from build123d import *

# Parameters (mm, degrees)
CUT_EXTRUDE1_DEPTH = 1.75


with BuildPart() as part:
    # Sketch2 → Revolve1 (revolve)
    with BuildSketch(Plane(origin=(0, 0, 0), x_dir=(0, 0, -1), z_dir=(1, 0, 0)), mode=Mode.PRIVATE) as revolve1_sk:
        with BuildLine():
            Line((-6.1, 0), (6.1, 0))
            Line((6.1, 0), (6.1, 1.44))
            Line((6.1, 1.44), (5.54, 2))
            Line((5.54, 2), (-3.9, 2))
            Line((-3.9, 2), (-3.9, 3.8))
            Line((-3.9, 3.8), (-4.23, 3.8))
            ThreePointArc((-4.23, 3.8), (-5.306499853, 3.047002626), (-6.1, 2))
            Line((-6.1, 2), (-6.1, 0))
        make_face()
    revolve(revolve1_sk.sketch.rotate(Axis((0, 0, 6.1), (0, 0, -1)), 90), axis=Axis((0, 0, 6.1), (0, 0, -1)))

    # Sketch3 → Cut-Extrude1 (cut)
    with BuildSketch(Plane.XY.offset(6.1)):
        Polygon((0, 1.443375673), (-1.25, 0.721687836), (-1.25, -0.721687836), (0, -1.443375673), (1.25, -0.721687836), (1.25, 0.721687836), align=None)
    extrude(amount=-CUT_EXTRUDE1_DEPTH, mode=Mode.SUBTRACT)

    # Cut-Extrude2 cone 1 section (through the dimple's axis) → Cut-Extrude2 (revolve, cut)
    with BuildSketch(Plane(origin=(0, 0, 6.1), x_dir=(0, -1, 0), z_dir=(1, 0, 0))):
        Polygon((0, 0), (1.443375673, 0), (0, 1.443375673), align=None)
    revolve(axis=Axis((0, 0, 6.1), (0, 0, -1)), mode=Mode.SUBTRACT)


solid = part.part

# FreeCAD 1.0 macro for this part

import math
import FreeCAD as App
import Part
import Sketcher
from FreeCAD import Vector
Q = App.Units.Quantity

doc = App.newDocument("Part")
body = doc.addObject("PartDesign::Body", "Body")

# Sketch on YZ plane
sketch1 = doc.addObject("Sketcher::SketchObject", "Sketch")
body.addObject(sketch1)
sketch1.AttachmentSupport = (doc.YZ_Plane, [""])
sketch1.MapMode = "FlatFace"
sketch1.addGeometry(Part.LineSegment(Vector(0, 6.1, 0), Vector(0, -6.1, 0)), False)
sketch1.addGeometry(Part.LineSegment(Vector(0, -6.1, 0), Vector(1.44, -6.1, 0)), False)
sketch1.addGeometry(Part.LineSegment(Vector(1.44, -6.1, 0), Vector(2, -5.54, 0)), False)
sketch1.addGeometry(Part.LineSegment(Vector(2, -5.54, 0), Vector(2, 3.9, 0)), False)
sketch1.addGeometry(Part.LineSegment(Vector(2, 3.9, 0), Vector(3.8, 3.9, 0)), False)
sketch1.addGeometry(Part.LineSegment(Vector(3.8, 3.9, 0), Vector(3.8, 4.23, 0)), False)
sketch1.addGeometry(Part.ArcOfCircle(Part.Circle(Vector(0, 2.37, 0), Vector(0, 0, 1), 4.23), math.radians(26), math.radians(62)), False)
sketch1.addGeometry(Part.LineSegment(Vector(2, 6.1, 0), Vector(0, 6.1, 0)), False)
sketch1.addConstraint(Sketcher.Constraint("Coincident", 0, 2, 1, 1))
sketch1.addConstraint(Sketcher.Constraint("Coincident", 1, 2, 2, 1))
sketch1.addConstraint(Sketcher.Constraint("Coincident", 2, 2, 3, 1))
sketch1.addConstraint(Sketcher.Constraint("Coincident", 3, 2, 4, 1))
sketch1.addConstraint(Sketcher.Constraint("Coincident", 4, 2, 5, 1))
sketch1.addConstraint(Sketcher.Constraint("Coincident", 5, 2, 6, 1))
sketch1.addConstraint(Sketcher.Constraint("Coincident", 6, 2, 7, 1))
sketch1.addConstraint(Sketcher.Constraint("Coincident", 7, 2, 0, 1))
sketch1.addConstraint(Sketcher.Constraint("Vertical", 0))
sketch1.addConstraint(Sketcher.Constraint("Horizontal", 1))
sketch1.addConstraint(Sketcher.Constraint("Vertical", 3))
sketch1.addConstraint(Sketcher.Constraint("Horizontal", 4))
sketch1.addConstraint(Sketcher.Constraint("Vertical", 5))
sketch1.addConstraint(Sketcher.Constraint("Horizontal", 7))
sketch1.addConstraint(Sketcher.Constraint("Symmetric", 0, 2, 7, 2, -1, 1))
sketch1.addConstraint(Sketcher.Constraint("PointOnObject", 6, 3, -2))
sketch1.addConstraint(Sketcher.Constraint("Vertical", 3, 2, 6, 2))
sketch1.addConstraint(Sketcher.Constraint("DistanceX", 7, 2, 7, 1, Q("2 mm")))
sketch1.addConstraint(Sketcher.Constraint("Angle", 2, Q("45 deg")))
sketch1.addConstraint(Sketcher.Constraint("DistanceX", 4, 1, 4, 2, Q("1.8 mm")))
sketch1.addConstraint(Sketcher.Constraint("DistanceY", 0, 2, 0, 1, Q("12.2 mm")))
sketch1.addConstraint(Sketcher.Constraint("DistanceY", 1, 2, 3, 2, Q("10 mm")))
sketch1.addConstraint(Sketcher.Constraint("DistanceX", 1, 1, 1, 2, Q("1.44 mm")))
sketch1.addConstraint(Sketcher.Constraint("DistanceY", 5, 1, 5, 2, Q("0.33 mm")))
revolution = doc.addObject("PartDesign::Revolution", "Revolution")
body.addObject(revolution)
revolution.Profile = sketch1
revolution.ReferenceAxis = (sketch1, ["V_Axis"])
revolution.Angle = 360

# Sketch on XY plane
sketch2 = doc.addObject("Sketcher::SketchObject", "Sketch001")
body.addObject(sketch2)
sketch2.AttachmentSupport = (doc.XY_Plane, [""])
sketch2.MapMode = "FlatFace"
sketch2.AttachmentOffset = App.Placement(Vector(0, 0, 6.1), App.Rotation())
sketch2.addGeometry(Part.LineSegment(Vector(0, 1.4, 0), Vector(-1.2, 0.7, 0)), False)
sketch2.addGeometry(Part.LineSegment(Vector(-1.2, 0.7, 0), Vector(-1.2, -0.7, 0)), False)
sketch2.addGeometry(Part.LineSegment(Vector(-1.2, -0.7, 0), Vector(0, -1.4, 0)), False)
sketch2.addGeometry(Part.LineSegment(Vector(0, -1.4, 0), Vector(1.2, -0.7, 0)), False)
sketch2.addGeometry(Part.LineSegment(Vector(1.2, -0.7, 0), Vector(1.2, 0.7, 0)), False)
sketch2.addGeometry(Part.LineSegment(Vector(1.2, 0.7, 0), Vector(0, 1.4, 0)), False)
sketch2.addConstraint(Sketcher.Constraint("Coincident", 0, 2, 1, 1))
sketch2.addConstraint(Sketcher.Constraint("Coincident", 1, 2, 2, 1))
sketch2.addConstraint(Sketcher.Constraint("Coincident", 2, 2, 3, 1))
sketch2.addConstraint(Sketcher.Constraint("Coincident", 3, 2, 4, 1))
sketch2.addConstraint(Sketcher.Constraint("Coincident", 4, 2, 5, 1))
sketch2.addConstraint(Sketcher.Constraint("Coincident", 5, 2, 0, 1))
sketch2.addConstraint(Sketcher.Constraint("Vertical", 1))
sketch2.addConstraint(Sketcher.Constraint("Vertical", 4))
sketch2.addConstraint(Sketcher.Constraint("Symmetric", 0, 2, 3, 2, -1, 1))
sketch2.addConstraint(Sketcher.Constraint("Symmetric", 2, 2, 5, 2, -1, 1))
sketch2.addConstraint(Sketcher.Constraint("PointOnObject", 2, 2, -2))
sketch2.addConstraint(Sketcher.Constraint("Parallel", 2, 5))
sketch2.addConstraint(Sketcher.Constraint("Horizontal", 1, 2, 3, 2))
sketch2.addConstraint(Sketcher.Constraint("Angle", 0, Q("-150 deg")))
sketch2.addConstraint(Sketcher.Constraint("DistanceX", 1, 2, 3, 2, Q("2.5 mm")))
sketch2.addConstraint(Sketcher.Constraint("DistanceY", 1, 2, 1, 1, Q("1.443376 mm")))
pocket1 = doc.addObject("PartDesign::Pocket", "Pocket")
body.addObject(pocket1)
pocket1.Profile = sketch2
pocket1.Length = 1.75

# Sketch on YZ plane
sketch3 = doc.addObject("Sketcher::SketchObject", "Sketch002")
body.addObject(sketch3)
sketch3.AttachmentSupport = (doc.YZ_Plane, [""])
sketch3.MapMode = "FlatFace"
sketch3.addGeometry(Part.LineSegment(Vector(0, 6.1, 0), Vector(-1.4, 6.1, 0)), False)
sketch3.addGeometry(Part.LineSegment(Vector(-1.4, 6.1, 0), Vector(0, 4.7, 0)), False)
sketch3.addGeometry(Part.LineSegment(Vector(0, 4.7, 0), Vector(0, 6.1, 0)), False)
sketch3.addConstraint(Sketcher.Constraint("Coincident", 0, 2, 1, 1))
sketch3.addConstraint(Sketcher.Constraint("Coincident", 1, 2, 2, 1))
sketch3.addConstraint(Sketcher.Constraint("Coincident", 2, 2, 0, 1))
sketch3.addConstraint(Sketcher.Constraint("Horizontal", 0))
sketch3.addConstraint(Sketcher.Constraint("Vertical", 2))
sketch3.addConstraint(Sketcher.Constraint("PointOnObject", 1, 2, -2))
sketch3.addConstraint(Sketcher.Constraint("Equal", 0, 2))
sketch3.addConstraint(Sketcher.Constraint("DistanceY", -1, 1, 0, 2, Q("6.1 mm")))
sketch3.addConstraint(Sketcher.Constraint("Distance", 1, Q("2.041241 mm")))
groove = doc.addObject("PartDesign::Groove", "Groove")
body.addObject(groove)
groove.Profile = sketch3
groove.ReferenceAxis = (sketch3, ["V_Axis"])
groove.Angle = 360

doc.recompute()
